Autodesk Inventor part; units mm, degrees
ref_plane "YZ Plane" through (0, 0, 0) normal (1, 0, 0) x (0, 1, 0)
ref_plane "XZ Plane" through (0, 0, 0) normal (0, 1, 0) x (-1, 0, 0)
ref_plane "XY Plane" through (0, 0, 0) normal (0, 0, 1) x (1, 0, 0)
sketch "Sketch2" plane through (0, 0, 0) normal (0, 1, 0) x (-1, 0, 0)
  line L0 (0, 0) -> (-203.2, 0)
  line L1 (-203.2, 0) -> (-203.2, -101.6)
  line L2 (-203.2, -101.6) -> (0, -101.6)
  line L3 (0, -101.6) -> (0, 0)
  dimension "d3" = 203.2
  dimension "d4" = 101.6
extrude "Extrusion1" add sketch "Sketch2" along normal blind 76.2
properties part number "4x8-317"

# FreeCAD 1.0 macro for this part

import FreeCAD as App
import Part
import Sketcher

V = App.Vector
Q = App.Units.Quantity

doc = App.newDocument("Part")
params = doc.addObject("Spreadsheet::Sheet", "Params")
for row, (alias, value) in enumerate([
    ("sketch1_width", "8 in"),
    ("sketch1_height", "4 in"),
    ("pad1_length", "3 in"),
], start=1):
    params.set(f"A{row}", alias)
    params.set(f"B{row}", "=" + value)
    params.setAlias(f"B{row}", alias)

body = doc.addObject("PartDesign::Body", "Body")

# Sketch on XZ plane
sketch1 = body.newObject("Sketcher::SketchObject", "Sketch")
sketch1.AttachmentSupport = (doc.getObject("XZ_Plane"), [""])
sketch1.MapMode = "FlatFace"
sketch1.addGeometry([
    Part.LineSegment(V(0, -101.6, 0), V(0, 0, 0)),
    Part.LineSegment(V(0, 0, 0), V(203.2, 0, 0)),
    Part.LineSegment(V(203.2, 0, 0), V(203.2, -101.6, 0)),
    Part.LineSegment(V(203.2, -101.6, 0), V(0, -101.6, 0)),
], False)
sketch1.addConstraint([
    Sketcher.Constraint("Coincident", 0, 2, 1, 1),
    Sketcher.Constraint("Coincident", 1, 2, 2, 1),
    Sketcher.Constraint("Coincident", 2, 2, 3, 1),
    Sketcher.Constraint("Coincident", 3, 2, 0, 1),
    Sketcher.Constraint("Vertical", 0),
    Sketcher.Constraint("Horizontal", 1),
    Sketcher.Constraint("Vertical", 2),
    Sketcher.Constraint("Horizontal", 3),
    Sketcher.Constraint("Coincident", 0, 2, -1, 1),
    Sketcher.Constraint("DistanceX", 1, 1, 1, 2, Q("8 in")),
    Sketcher.Constraint("DistanceY", 0, 1, 0, 2, Q("4 in")),
])
sketch1.setExpression("Constraints[9]", "Params.sketch1_width")
sketch1.setExpression("Constraints[10]", "Params.sketch1_height")
pad1 = body.newObject("PartDesign::Pad", "Pad")
pad1.Profile = sketch1
pad1.setExpression("Length", "Params.pad1_length")
pad1.Reversed = True

doc.recompute()
